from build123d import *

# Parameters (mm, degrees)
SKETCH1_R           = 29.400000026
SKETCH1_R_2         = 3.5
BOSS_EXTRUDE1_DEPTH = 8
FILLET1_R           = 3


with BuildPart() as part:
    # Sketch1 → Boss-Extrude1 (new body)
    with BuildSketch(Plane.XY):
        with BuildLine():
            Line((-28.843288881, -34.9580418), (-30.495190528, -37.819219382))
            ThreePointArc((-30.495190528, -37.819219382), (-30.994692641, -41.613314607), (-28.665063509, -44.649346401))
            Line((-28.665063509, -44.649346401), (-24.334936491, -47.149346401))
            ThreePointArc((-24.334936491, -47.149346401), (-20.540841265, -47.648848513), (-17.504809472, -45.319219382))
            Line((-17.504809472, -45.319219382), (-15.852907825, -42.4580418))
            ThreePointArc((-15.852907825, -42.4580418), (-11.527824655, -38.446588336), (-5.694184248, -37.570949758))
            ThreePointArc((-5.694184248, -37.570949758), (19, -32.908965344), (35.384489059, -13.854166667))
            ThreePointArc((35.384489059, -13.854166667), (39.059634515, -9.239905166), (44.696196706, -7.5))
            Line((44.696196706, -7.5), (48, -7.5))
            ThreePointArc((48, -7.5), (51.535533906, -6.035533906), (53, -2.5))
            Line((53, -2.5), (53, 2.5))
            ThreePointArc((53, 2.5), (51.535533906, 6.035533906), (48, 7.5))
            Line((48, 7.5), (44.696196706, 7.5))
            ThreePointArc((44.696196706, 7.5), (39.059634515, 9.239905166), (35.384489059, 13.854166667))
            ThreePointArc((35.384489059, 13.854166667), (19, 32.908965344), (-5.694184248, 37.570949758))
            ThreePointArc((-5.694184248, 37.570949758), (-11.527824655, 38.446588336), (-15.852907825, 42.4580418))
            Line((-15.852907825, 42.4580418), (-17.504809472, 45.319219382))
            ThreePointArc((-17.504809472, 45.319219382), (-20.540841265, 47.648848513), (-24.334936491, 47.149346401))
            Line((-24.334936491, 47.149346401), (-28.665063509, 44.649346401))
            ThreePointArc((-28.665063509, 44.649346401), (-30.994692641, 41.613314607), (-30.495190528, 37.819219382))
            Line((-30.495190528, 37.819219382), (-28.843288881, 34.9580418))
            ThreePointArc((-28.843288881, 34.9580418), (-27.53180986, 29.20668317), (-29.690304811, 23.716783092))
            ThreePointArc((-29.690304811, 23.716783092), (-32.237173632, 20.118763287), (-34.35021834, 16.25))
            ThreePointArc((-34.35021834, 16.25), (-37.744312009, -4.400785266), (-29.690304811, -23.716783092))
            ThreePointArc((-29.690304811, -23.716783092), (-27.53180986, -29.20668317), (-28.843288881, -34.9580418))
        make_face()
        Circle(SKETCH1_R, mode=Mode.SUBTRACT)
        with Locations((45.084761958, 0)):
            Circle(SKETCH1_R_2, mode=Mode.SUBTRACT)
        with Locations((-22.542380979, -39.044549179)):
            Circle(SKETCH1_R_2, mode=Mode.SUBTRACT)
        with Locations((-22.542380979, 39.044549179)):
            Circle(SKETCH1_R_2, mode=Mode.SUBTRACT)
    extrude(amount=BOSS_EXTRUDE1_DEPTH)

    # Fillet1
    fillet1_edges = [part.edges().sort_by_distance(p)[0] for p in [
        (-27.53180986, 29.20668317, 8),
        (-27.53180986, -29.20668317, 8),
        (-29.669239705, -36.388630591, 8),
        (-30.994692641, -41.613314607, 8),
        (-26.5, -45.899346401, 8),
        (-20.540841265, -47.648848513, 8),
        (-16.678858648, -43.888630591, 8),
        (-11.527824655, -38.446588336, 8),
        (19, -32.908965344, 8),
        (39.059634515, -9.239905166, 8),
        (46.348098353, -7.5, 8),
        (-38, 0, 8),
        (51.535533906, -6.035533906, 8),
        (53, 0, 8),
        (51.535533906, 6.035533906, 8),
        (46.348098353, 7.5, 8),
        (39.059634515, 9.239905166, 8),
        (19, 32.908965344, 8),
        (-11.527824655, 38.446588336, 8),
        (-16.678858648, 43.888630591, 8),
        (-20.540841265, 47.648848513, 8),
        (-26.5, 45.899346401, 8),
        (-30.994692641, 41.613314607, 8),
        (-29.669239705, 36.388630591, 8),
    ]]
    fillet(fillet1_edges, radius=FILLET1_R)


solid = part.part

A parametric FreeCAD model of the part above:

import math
import FreeCAD as App
import Part
import Sketcher

V = App.Vector
Q = App.Units.Quantity


def edges_at(feature, points):
    """Names of the edges that pass closest to the given points."""
    edges = feature.Shape.Edges
    near = lambda p: min(range(len(edges)), key=lambda i: edges[i].distToShape(Part.Vertex(*p))[0])
    return sorted({f"Edge{near(p) + 1}" for p in points})

doc = App.newDocument("Part")
params = doc.addObject("Spreadsheet::Sheet", "Params")
for row, (alias, value) in enumerate([
    ("sketch1_diameter", "7 mm"),
    ("sketch1_radius", "5 mm"),
    ("sketch1_radius2", "10 mm"),
    ("sketch1_radius3", "38 mm"),
    ("sketch1_diameter2", "58.8 mm"),
    ("pad1_length", "8 mm"),
    ("fillet_radius", "3 mm"),
], start=1):
    params.set(f"A{row}", alias)
    params.set(f"B{row}", "=" + value)
    params.setAlias(f"B{row}", alias)

body = doc.addObject("PartDesign::Body", "Body")

# Sketch on XY plane
sketch1 = body.newObject("Sketcher::SketchObject", "Sketch")
sketch1.AttachmentSupport = (doc.getObject("XY_Plane"), [""])
sketch1.MapMode = "FlatFace"
sketch1.addGeometry(Part.LineSegment(V(-28.8, -35, 0), V(-30.5, -37.8, 0)), False)
sketch1.addGeometry(Part.ArcOfCircle(Part.Circle(V(-26.2, -40.3, 0), V(0, 0, 1), 5), math.radians(150), math.radians(240)), False)
sketch1.addGeometry(Part.LineSegment(V(-28.7, -44.6, 0), V(-24.3, -47.1, 0)), False)
sketch1.addGeometry(Part.ArcOfCircle(Part.Circle(V(-21.8, -42.8, 0), V(0, 0, 1), 5), math.radians(-120), math.radians(-30)), False)
sketch1.addGeometry(Part.LineSegment(V(-17.5, -45.3, 0), V(-15.9, -42.5, 0)), False)
sketch1.addGeometry(Part.ArcOfCircle(Part.Circle(V(-7.2, -47.5, 0), V(0, 0, 1), 10), math.radians(81), math.radians(150)), False)
sketch1.addGeometry(Part.ArcOfCircle(Part.Circle(V(0, 0, 0), V(0, 0, 1), 38), math.radians(-99), math.radians(-21)), False)
sketch1.addGeometry(Part.ArcOfCircle(Part.Circle(V(44.7, -17.5, 0), V(0, 0, 1), 10), math.radians(90), math.radians(159)), False)
sketch1.addGeometry(Part.LineSegment(V(44.7, -7.5, 0), V(48, -7.5, 0)), False)
sketch1.addGeometry(Part.ArcOfCircle(Part.Circle(V(48, -2.5, 0), V(0, 0, 1), 5), math.radians(-90), math.radians(0)), False)
sketch1.addGeometry(Part.LineSegment(V(53, -2.5, 0), V(53, 2.5, 0)), False)
sketch1.addGeometry(Part.ArcOfCircle(Part.Circle(V(48, 2.5, 0), V(0, 0, 1), 5), math.radians(0), math.radians(90)), False)
sketch1.addGeometry(Part.LineSegment(V(48, 7.5, 0), V(44.7, 7.5, 0)), False)
sketch1.addGeometry(Part.ArcOfCircle(Part.Circle(V(44.7, 17.5, 0), V(0, 0, 1), 10), math.radians(-159), math.radians(-90)), False)
sketch1.addGeometry(Part.ArcOfCircle(Part.Circle(V(0, 0, 0), V(0, 0, 1), 38), math.radians(21), math.radians(99)), False)
sketch1.addGeometry(Part.ArcOfCircle(Part.Circle(V(-7.2, 47.5, 0), V(0, 0, 1), 10), math.radians(-150), math.radians(-81)), False)
sketch1.addGeometry(Part.LineSegment(V(-15.9, 42.5, 0), V(-17.5, 45.3, 0)), False)
sketch1.addGeometry(Part.ArcOfCircle(Part.Circle(V(-21.8, 42.8, 0), V(0, 0, 1), 5), math.radians(30), math.radians(120)), False)
sketch1.addGeometry(Part.LineSegment(V(-24.3, 47.1, 0), V(-28.7, 44.6, 0)), False)
sketch1.addGeometry(Part.ArcOfCircle(Part.Circle(V(-26.2, 40.3, 0), V(0, 0, 1), 5), math.radians(120), math.radians(210)), False)
sketch1.addGeometry(Part.LineSegment(V(-30.5, 37.8, 0), V(-28.8, 35, 0)), False)
sketch1.addGeometry(Part.ArcOfCircle(Part.Circle(V(-37.5, 30, 0), V(0, 0, 1), 10), math.radians(-39), math.radians(30)), False)
sketch1.addGeometry(Part.ArcOfCircle(Part.Circle(V(0, 0, 0), V(0, 0, 1), 38), math.radians(141.38), math.radians(154.68)), False)
sketch1.addGeometry(Part.ArcOfCircle(Part.Circle(V(0, 0, 0), V(0, 0, 1), 38), math.radians(155), math.radians(219)), False)
sketch1.addGeometry(Part.ArcOfCircle(Part.Circle(V(-37.5, -30, 0), V(0, 0, 1), 10), math.radians(-30), math.radians(39)), False)
sketch1.addGeometry(Part.Circle(V(-22.5, -39, 0), V(0, 0, 1), 3.5), False)
sketch1.addGeometry(Part.Circle(V(0, 0, 0), V(0, 0, 1), 29.4), False)
sketch1.addGeometry(Part.Circle(V(-22.5, 39, 0), V(0, 0, 1), 3.5), False)
sketch1.addGeometry(Part.Circle(V(45.1, 0, 0), V(0, 0, 1), 3.5), False)
sketch1.addConstraint(Sketcher.Constraint("Tangent", 0, 2, 1, 1))
sketch1.addConstraint(Sketcher.Constraint("Tangent", 1, 2, 2, 1))
sketch1.addConstraint(Sketcher.Constraint("Tangent", 2, 2, 3, 1))
sketch1.addConstraint(Sketcher.Constraint("Tangent", 3, 2, 4, 1))
sketch1.addConstraint(Sketcher.Constraint("Tangent", 4, 2, 5, 2))
sketch1.addConstraint(Sketcher.Constraint("Tangent", 5, 1, 6, 1))
sketch1.addConstraint(Sketcher.Constraint("Tangent", 6, 2, 7, 2))
sketch1.addConstraint(Sketcher.Constraint("Tangent", 7, 1, 8, 1))
sketch1.addConstraint(Sketcher.Constraint("Tangent", 8, 2, 9, 1))
sketch1.addConstraint(Sketcher.Constraint("Tangent", 9, 2, 10, 1))
sketch1.addConstraint(Sketcher.Constraint("Tangent", 10, 2, 11, 1))
sketch1.addConstraint(Sketcher.Constraint("Tangent", 11, 2, 12, 1))
sketch1.addConstraint(Sketcher.Constraint("Tangent", 12, 2, 13, 2))
sketch1.addConstraint(Sketcher.Constraint("Tangent", 13, 1, 14, 1))
sketch1.addConstraint(Sketcher.Constraint("Tangent", 14, 2, 15, 2))
sketch1.addConstraint(Sketcher.Constraint("Tangent", 15, 1, 16, 1))
sketch1.addConstraint(Sketcher.Constraint("Tangent", 16, 2, 17, 1))
sketch1.addConstraint(Sketcher.Constraint("Tangent", 17, 2, 18, 1))
sketch1.addConstraint(Sketcher.Constraint("Tangent", 18, 2, 19, 1))
sketch1.addConstraint(Sketcher.Constraint("Tangent", 19, 2, 20, 1))
sketch1.addConstraint(Sketcher.Constraint("Tangent", 20, 2, 21, 2))
sketch1.addConstraint(Sketcher.Constraint("Tangent", 21, 1, 22, 1))
sketch1.addConstraint(Sketcher.Constraint("Tangent", 22, 2, 23, 1))
sketch1.addConstraint(Sketcher.Constraint("Tangent", 23, 2, 24, 2))
sketch1.addConstraint(Sketcher.Constraint("Tangent", 24, 1, 0, 1))
sketch1.addConstraint(Sketcher.Constraint("Horizontal", 8))
sketch1.addConstraint(Sketcher.Constraint("Vertical", 10))
sketch1.addConstraint(Sketcher.Constraint("Horizontal", 12))
sketch1.addConstraint(Sketcher.Constraint("Coincident", 6, 3, -1, 1))
sketch1.addConstraint(Sketcher.Constraint("Coincident", 14, 3, -1, 1))
sketch1.addConstraint(Sketcher.Constraint("Coincident", 22, 3, -1, 1))
sketch1.addConstraint(Sketcher.Constraint("Coincident", 26, 3, -1, 1))
sketch1.addConstraint(Sketcher.Constraint("Equal", 1, 3))
sketch1.addConstraint(Sketcher.Constraint("Equal", 5, 7))
sketch1.addConstraint(Sketcher.Constraint("Equal", 3, 9))
sketch1.addConstraint(Sketcher.Constraint("Equal", 9, 11))
sketch1.addConstraint(Sketcher.Constraint("Equal", 7, 13))
sketch1.addConstraint(Sketcher.Constraint("Equal", 6, 14))
sketch1.addConstraint(Sketcher.Constraint("Equal", 13, 15))
sketch1.addConstraint(Sketcher.Constraint("Equal", 11, 17))
sketch1.addConstraint(Sketcher.Constraint("Equal", 17, 19))
sketch1.addConstraint(Sketcher.Constraint("Equal", 15, 21))
sketch1.addConstraint(Sketcher.Constraint("Equal", 14, 22))
sketch1.addConstraint(Sketcher.Constraint("Equal", 22, 23))
sketch1.addConstraint(Sketcher.Constraint("Equal", 21, 24))
sketch1.addConstraint(Sketcher.Constraint("Equal", 25, 27))
sketch1.addConstraint(Sketcher.Constraint("Equal", 27, 28))
sketch1.addConstraint(Sketcher.Constraint("Symmetric", 3, 3, 17, 3, -1))
sketch1.addConstraint(Sketcher.Constraint("Symmetric", 1, 3, 19, 3, -1))
sketch1.addConstraint(Sketcher.Constraint("Symmetric", 25, 3, 27, 3, -1))
sketch1.addConstraint(Sketcher.Constraint("PointOnObject", 28, 3, -1))
sketch1.addConstraint(Sketcher.Constraint("Perpendicular", 0, 2))
sketch1.addConstraint(Sketcher.Constraint("Perpendicular", 2, 4))
sketch1.addConstraint(Sketcher.Constraint("Perpendicular", 16, 18))
sketch1.addConstraint(Sketcher.Constraint("Perpendicular", 18, 20))
sketch1.addConstraint(Sketcher.Constraint("Vertical", 7, 3, 13, 3))
sketch1.addConstraint(Sketcher.Constraint("Equal", 0, 4))
sketch1.addConstraint(Sketcher.Constraint("Diameter", 25, Q("7 mm")))
sketch1.addConstraint(Sketcher.Constraint("Radius", 1, Q("5 mm")))
sketch1.addConstraint(Sketcher.Constraint("Radius", 5, Q("10 mm")))
sketch1.addConstraint(Sketcher.Constraint("Radius", 6, Q("38 mm")))
sketch1.addConstraint(Sketcher.Constraint("Diameter", 26, Q("58.8 mm")))
sketch1.addConstraint(Sketcher.Constraint("DistanceY", 10, 1, 10, 2, Q("5 mm")))
sketch1.addConstraint(Sketcher.Constraint("Angle", 0, Q("-120 deg")))
sketch1.addConstraint(Sketcher.Constraint("Distance", 2, Q("5 mm")))
sketch1.addConstraint(Sketcher.Constraint("DistanceX", -1, 1, 9, 3, Q("48 mm")))
sketch1.addConstraint(Sketcher.Constraint("DistanceY", -1, 1, 22, 2, Q("16.25 mm")))
sketch1.addConstraint(Sketcher.Constraint("DistanceX", 3, 2, 4, 2, Q("1.651902 mm")))
sketch1.addConstraint(Sketcher.Constraint("DistanceY", 25, 3, 5, 1, Q("1.473599 mm")))
sketch1.addConstraint(Sketcher.Constraint("DistanceX", 25, 3, -1, 1, Q("22.542381 mm")))
sketch1.addConstraint(Sketcher.Constraint("DistanceX", -1, 1, 28, 3, Q("45.084762 mm")))
sketch1.setExpression("Constraints[57]", "Params.sketch1_diameter")
sketch1.setExpression("Constraints[58]", "Params.sketch1_radius")
sketch1.setExpression("Constraints[59]", "Params.sketch1_radius2")
sketch1.setExpression("Constraints[60]", "Params.sketch1_radius3")
sketch1.setExpression("Constraints[61]", "Params.sketch1_diameter2")
pad1 = body.newObject("PartDesign::Pad", "Pad")
pad1.Profile = sketch1
pad1.setExpression("Length", "Params.pad1_length")
doc.recompute()

fillet = body.newObject("PartDesign::Fillet", "Fillet")
fillet.Base = (pad1, edges_at(pad1, [
    (-27.532, 29.207, 8),
    (-27.532, -29.207, 8),
    (-29.669, -36.389, 8),
    (-30.995, -41.613, 8),
    (-26.5, -45.899, 8),
    (-20.541, -47.649, 8),
    (-16.679, -43.889, 8),
    (-11.528, -38.447, 8),
    (19, -32.909, 8),
    (39.06, -9.24, 8),
    (46.348, -7.5, 8),
    (-37.744, -4.401, 8),
    (51.536, -6.036, 8),
    (53, 0, 8),
    (51.536, 6.036, 8),
    (46.348, 7.5, 8),
    (39.06, 9.24, 8),
    (19, 32.909, 8),
    (-11.528, 38.447, 8),
    (-16.679, 43.889, 8),
    (-20.541, 47.649, 8),
    (-26.5, 45.899, 8),
    (-30.995, 41.613, 8),
    (-29.669, 36.389, 8),
]))
fillet.setExpression("Radius", "Params.fillet_radius")

doc.recompute()
